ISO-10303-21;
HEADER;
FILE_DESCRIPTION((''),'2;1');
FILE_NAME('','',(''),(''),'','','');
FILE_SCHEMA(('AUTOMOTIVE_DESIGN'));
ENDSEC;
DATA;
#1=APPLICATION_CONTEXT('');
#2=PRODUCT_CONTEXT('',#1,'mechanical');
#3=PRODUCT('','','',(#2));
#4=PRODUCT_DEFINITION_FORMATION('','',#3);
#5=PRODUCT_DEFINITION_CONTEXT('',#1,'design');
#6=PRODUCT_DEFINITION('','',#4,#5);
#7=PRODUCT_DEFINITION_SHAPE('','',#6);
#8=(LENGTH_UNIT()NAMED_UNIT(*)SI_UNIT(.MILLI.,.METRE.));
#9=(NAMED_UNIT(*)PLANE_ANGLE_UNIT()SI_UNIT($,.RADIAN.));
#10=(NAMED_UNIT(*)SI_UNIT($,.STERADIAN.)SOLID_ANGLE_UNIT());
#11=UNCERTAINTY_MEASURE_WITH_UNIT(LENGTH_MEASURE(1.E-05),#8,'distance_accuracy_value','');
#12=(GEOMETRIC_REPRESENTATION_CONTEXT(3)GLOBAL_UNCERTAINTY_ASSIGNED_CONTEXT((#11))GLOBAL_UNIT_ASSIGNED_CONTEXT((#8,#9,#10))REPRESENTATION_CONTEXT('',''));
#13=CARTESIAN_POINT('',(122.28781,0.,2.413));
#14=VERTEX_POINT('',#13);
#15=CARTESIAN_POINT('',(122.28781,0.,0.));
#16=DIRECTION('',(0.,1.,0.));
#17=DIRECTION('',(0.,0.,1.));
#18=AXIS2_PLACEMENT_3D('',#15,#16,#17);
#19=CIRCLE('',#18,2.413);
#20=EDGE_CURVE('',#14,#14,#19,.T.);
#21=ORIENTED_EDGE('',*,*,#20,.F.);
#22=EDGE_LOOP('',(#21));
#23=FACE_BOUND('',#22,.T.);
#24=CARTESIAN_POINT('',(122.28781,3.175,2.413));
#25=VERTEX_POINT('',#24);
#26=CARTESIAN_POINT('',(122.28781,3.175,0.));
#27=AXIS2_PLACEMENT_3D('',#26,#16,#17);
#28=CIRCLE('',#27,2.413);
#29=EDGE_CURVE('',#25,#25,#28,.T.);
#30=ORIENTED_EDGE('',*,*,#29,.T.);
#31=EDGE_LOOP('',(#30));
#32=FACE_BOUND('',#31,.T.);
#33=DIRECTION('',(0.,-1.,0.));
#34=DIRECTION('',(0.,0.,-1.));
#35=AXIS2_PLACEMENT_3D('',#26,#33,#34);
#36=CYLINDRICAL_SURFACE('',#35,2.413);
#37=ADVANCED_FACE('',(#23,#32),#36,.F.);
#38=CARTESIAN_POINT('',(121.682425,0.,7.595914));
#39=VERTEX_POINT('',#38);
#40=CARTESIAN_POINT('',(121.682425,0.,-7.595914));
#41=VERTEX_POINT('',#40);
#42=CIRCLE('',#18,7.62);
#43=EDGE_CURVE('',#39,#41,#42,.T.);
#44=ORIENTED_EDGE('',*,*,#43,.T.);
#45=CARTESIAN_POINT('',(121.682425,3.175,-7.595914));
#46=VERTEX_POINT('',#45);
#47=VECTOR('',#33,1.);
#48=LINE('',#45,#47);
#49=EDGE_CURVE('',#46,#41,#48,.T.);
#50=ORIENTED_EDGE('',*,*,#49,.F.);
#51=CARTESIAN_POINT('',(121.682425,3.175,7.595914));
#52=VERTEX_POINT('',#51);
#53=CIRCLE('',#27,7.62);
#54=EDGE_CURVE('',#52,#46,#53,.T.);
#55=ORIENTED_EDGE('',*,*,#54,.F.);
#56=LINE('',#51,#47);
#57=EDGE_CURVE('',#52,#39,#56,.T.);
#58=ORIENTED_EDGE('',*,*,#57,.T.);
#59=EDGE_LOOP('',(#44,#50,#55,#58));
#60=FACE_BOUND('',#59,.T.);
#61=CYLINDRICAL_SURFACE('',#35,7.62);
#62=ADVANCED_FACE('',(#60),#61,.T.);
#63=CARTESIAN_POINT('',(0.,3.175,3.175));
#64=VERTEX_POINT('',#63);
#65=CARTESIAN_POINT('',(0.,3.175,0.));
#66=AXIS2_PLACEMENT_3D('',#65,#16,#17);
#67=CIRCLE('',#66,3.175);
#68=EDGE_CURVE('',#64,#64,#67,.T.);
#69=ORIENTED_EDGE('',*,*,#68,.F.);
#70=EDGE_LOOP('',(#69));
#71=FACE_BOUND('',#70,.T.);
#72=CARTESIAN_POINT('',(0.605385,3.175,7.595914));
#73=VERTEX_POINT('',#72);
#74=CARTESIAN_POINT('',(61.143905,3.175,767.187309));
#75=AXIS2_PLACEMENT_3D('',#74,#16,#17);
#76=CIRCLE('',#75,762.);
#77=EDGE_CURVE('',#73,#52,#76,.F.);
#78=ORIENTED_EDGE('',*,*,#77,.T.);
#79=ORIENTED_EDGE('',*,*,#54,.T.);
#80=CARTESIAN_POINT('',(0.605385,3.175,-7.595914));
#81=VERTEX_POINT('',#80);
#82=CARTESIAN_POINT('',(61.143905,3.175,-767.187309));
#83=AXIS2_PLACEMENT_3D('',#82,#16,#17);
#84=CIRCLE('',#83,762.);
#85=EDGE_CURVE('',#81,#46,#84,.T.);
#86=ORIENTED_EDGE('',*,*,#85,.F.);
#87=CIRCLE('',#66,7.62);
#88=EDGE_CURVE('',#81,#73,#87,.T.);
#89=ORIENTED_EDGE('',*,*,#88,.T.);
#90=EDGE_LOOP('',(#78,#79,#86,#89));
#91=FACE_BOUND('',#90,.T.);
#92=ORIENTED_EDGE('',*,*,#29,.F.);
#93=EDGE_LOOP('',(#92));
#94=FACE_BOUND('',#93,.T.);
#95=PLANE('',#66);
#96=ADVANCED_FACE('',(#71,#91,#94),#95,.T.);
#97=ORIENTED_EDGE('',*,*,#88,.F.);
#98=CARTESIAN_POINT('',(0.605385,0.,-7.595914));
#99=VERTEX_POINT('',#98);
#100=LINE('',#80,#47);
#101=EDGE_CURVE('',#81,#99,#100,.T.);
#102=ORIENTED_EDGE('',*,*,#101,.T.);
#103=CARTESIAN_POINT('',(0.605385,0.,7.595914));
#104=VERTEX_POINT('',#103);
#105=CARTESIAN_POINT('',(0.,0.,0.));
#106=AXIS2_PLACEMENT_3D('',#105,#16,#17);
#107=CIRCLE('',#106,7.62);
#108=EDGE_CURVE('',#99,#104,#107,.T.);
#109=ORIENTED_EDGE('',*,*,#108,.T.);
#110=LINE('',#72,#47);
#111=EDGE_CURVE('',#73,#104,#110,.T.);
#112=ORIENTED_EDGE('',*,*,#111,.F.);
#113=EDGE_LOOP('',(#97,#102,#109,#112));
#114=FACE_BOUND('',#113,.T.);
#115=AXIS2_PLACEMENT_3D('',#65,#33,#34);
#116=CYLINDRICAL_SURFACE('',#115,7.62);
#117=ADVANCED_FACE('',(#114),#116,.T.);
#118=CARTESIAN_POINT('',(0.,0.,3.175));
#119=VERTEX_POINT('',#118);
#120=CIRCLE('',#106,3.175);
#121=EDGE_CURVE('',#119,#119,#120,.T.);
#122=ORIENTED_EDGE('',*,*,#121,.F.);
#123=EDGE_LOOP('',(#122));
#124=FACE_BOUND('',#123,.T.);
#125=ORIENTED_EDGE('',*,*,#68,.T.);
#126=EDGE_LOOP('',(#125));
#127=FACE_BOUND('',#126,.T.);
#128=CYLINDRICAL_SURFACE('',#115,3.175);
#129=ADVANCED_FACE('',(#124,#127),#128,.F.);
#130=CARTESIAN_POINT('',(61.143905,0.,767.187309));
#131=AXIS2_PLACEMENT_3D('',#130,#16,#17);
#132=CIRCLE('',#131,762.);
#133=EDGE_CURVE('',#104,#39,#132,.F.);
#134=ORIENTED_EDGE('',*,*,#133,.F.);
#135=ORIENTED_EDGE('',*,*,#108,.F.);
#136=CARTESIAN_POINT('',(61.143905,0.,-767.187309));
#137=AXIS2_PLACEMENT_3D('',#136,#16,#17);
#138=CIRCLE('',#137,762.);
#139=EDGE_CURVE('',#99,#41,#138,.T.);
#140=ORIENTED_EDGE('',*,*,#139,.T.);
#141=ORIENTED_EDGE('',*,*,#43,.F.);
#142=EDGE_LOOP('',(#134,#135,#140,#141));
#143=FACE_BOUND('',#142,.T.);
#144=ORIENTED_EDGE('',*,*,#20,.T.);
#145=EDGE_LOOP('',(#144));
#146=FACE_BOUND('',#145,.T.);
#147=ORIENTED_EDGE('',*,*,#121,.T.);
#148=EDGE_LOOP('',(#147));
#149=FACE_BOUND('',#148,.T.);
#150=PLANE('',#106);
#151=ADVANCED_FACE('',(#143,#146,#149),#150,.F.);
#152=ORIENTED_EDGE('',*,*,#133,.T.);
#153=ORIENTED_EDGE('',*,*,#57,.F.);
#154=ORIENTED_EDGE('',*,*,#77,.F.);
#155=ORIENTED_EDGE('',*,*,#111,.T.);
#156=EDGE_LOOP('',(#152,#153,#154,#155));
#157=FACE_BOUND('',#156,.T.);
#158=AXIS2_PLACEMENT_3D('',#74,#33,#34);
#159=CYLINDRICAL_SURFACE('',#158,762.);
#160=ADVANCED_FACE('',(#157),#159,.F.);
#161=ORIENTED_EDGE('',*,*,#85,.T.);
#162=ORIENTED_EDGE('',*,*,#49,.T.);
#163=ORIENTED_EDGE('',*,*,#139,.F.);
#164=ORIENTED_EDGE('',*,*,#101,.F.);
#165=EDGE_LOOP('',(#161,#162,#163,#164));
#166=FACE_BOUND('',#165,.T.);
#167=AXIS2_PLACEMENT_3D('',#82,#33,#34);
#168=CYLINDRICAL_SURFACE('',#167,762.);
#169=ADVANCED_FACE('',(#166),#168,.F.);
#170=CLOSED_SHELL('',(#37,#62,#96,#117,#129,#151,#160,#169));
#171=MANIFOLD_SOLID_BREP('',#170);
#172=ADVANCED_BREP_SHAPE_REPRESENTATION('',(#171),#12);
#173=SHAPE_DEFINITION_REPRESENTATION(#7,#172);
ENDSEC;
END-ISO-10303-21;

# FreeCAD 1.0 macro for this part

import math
import FreeCAD as App
import Part
import Sketcher
Q = App.Units.Quantity

doc = App.newDocument("Part")
params = doc.addObject("Spreadsheet::Sheet", "Params")
for row, (alias, value) in enumerate([
    ("sketch1_radius", "30 in"),
    ("sketch1_radius2", "0.3 in"),
    ("sketch1_diameter", "0.25 in"),
    ("sketch1_diameter2", "0.19 in"),
    ("pad1_length", "0.125 in"),
], start=1):
    params.set(f"A{row}", alias)
    params.set(f"B{row}", "=" + value)
    params.setAlias(f"B{row}", alias)

body = doc.addObject("PartDesign::Body", "Body")

# Sketch on XZ plane
sketch1 = doc.addObject("Sketcher::SketchObject", "Sketch")
body.addObject(sketch1)
sketch1.AttachmentSupport = (doc.XZ_Plane, [""])
sketch1.MapMode = "FlatFace"
sketch1.addGeometry([
    Part.ArcOfCircle(Part.Circle(App.Vector(0, 0, 0), App.Vector(0, 0, 1), 7.62), math.radians(85.443227), math.radians(274.556773)),  # 0
    Part.ArcOfCircle(Part.Circle(App.Vector(61.143905, 767.187309, 0), App.Vector(0, 0, 1), 762), math.radians(-94.556773), math.radians(-85.443227)),  # 1
    Part.ArcOfCircle(Part.Circle(App.Vector(122.28781, 0, 0), App.Vector(0, 0, 1), 7.62), math.radians(-94.556773), math.radians(94.556773)),  # 2
    Part.ArcOfCircle(Part.Circle(App.Vector(61.143905, -767.187309, 0), App.Vector(0, 0, 1), 762), math.radians(85.443227), math.radians(94.556773)),  # 3
    Part.Circle(App.Vector(0, 0, 0), App.Vector(0, 0, 1), 3.175),  # 4
    Part.Circle(App.Vector(122.28781, 0, 0), App.Vector(0, 0, 1), 2.413),  # 5
], False)
sketch1.addConstraint([
    Sketcher.Constraint("Tangent", 0, 1, 1, 1),
    Sketcher.Constraint("Tangent", 1, 2, 2, 2),
    Sketcher.Constraint("Tangent", 2, 1, 3, 1),
    Sketcher.Constraint("Tangent", 3, 2, 0, 2),
    Sketcher.Constraint("Coincident", 0, 3, -1, 1),
    Sketcher.Constraint("Coincident", 4, 3, -1, 1),
    Sketcher.Constraint("Coincident", 5, 3, 2, 3),
    Sketcher.Constraint("Equal", 0, 2),
    Sketcher.Constraint("Equal", 1, 3),
    Sketcher.Constraint("PointOnObject", 2, 3, -1),
    Sketcher.Constraint("Radius", 1, Q("30 in")),
    Sketcher.Constraint("Radius", 0, Q("0.3 in")),
    Sketcher.Constraint("Diameter", 4, Q("0.25 in")),
    Sketcher.Constraint("Diameter", 5, Q("0.19 in")),
    Sketcher.Constraint("DistanceY", -1, 1, 1, 3, 767.187309),
])
sketch1.setExpression("Constraints[10]", "Params.sketch1_radius")
sketch1.setExpression("Constraints[11]", "Params.sketch1_radius2")
sketch1.setExpression("Constraints[12]", "Params.sketch1_diameter")
sketch1.setExpression("Constraints[13]", "Params.sketch1_diameter2")
pad1 = doc.addObject("PartDesign::Pad", "Pad")
body.addObject(pad1)
pad1.Profile = sketch1
pad1.setExpression("Length", "Params.pad1_length")
pad1.Reversed = True

doc.recompute()
